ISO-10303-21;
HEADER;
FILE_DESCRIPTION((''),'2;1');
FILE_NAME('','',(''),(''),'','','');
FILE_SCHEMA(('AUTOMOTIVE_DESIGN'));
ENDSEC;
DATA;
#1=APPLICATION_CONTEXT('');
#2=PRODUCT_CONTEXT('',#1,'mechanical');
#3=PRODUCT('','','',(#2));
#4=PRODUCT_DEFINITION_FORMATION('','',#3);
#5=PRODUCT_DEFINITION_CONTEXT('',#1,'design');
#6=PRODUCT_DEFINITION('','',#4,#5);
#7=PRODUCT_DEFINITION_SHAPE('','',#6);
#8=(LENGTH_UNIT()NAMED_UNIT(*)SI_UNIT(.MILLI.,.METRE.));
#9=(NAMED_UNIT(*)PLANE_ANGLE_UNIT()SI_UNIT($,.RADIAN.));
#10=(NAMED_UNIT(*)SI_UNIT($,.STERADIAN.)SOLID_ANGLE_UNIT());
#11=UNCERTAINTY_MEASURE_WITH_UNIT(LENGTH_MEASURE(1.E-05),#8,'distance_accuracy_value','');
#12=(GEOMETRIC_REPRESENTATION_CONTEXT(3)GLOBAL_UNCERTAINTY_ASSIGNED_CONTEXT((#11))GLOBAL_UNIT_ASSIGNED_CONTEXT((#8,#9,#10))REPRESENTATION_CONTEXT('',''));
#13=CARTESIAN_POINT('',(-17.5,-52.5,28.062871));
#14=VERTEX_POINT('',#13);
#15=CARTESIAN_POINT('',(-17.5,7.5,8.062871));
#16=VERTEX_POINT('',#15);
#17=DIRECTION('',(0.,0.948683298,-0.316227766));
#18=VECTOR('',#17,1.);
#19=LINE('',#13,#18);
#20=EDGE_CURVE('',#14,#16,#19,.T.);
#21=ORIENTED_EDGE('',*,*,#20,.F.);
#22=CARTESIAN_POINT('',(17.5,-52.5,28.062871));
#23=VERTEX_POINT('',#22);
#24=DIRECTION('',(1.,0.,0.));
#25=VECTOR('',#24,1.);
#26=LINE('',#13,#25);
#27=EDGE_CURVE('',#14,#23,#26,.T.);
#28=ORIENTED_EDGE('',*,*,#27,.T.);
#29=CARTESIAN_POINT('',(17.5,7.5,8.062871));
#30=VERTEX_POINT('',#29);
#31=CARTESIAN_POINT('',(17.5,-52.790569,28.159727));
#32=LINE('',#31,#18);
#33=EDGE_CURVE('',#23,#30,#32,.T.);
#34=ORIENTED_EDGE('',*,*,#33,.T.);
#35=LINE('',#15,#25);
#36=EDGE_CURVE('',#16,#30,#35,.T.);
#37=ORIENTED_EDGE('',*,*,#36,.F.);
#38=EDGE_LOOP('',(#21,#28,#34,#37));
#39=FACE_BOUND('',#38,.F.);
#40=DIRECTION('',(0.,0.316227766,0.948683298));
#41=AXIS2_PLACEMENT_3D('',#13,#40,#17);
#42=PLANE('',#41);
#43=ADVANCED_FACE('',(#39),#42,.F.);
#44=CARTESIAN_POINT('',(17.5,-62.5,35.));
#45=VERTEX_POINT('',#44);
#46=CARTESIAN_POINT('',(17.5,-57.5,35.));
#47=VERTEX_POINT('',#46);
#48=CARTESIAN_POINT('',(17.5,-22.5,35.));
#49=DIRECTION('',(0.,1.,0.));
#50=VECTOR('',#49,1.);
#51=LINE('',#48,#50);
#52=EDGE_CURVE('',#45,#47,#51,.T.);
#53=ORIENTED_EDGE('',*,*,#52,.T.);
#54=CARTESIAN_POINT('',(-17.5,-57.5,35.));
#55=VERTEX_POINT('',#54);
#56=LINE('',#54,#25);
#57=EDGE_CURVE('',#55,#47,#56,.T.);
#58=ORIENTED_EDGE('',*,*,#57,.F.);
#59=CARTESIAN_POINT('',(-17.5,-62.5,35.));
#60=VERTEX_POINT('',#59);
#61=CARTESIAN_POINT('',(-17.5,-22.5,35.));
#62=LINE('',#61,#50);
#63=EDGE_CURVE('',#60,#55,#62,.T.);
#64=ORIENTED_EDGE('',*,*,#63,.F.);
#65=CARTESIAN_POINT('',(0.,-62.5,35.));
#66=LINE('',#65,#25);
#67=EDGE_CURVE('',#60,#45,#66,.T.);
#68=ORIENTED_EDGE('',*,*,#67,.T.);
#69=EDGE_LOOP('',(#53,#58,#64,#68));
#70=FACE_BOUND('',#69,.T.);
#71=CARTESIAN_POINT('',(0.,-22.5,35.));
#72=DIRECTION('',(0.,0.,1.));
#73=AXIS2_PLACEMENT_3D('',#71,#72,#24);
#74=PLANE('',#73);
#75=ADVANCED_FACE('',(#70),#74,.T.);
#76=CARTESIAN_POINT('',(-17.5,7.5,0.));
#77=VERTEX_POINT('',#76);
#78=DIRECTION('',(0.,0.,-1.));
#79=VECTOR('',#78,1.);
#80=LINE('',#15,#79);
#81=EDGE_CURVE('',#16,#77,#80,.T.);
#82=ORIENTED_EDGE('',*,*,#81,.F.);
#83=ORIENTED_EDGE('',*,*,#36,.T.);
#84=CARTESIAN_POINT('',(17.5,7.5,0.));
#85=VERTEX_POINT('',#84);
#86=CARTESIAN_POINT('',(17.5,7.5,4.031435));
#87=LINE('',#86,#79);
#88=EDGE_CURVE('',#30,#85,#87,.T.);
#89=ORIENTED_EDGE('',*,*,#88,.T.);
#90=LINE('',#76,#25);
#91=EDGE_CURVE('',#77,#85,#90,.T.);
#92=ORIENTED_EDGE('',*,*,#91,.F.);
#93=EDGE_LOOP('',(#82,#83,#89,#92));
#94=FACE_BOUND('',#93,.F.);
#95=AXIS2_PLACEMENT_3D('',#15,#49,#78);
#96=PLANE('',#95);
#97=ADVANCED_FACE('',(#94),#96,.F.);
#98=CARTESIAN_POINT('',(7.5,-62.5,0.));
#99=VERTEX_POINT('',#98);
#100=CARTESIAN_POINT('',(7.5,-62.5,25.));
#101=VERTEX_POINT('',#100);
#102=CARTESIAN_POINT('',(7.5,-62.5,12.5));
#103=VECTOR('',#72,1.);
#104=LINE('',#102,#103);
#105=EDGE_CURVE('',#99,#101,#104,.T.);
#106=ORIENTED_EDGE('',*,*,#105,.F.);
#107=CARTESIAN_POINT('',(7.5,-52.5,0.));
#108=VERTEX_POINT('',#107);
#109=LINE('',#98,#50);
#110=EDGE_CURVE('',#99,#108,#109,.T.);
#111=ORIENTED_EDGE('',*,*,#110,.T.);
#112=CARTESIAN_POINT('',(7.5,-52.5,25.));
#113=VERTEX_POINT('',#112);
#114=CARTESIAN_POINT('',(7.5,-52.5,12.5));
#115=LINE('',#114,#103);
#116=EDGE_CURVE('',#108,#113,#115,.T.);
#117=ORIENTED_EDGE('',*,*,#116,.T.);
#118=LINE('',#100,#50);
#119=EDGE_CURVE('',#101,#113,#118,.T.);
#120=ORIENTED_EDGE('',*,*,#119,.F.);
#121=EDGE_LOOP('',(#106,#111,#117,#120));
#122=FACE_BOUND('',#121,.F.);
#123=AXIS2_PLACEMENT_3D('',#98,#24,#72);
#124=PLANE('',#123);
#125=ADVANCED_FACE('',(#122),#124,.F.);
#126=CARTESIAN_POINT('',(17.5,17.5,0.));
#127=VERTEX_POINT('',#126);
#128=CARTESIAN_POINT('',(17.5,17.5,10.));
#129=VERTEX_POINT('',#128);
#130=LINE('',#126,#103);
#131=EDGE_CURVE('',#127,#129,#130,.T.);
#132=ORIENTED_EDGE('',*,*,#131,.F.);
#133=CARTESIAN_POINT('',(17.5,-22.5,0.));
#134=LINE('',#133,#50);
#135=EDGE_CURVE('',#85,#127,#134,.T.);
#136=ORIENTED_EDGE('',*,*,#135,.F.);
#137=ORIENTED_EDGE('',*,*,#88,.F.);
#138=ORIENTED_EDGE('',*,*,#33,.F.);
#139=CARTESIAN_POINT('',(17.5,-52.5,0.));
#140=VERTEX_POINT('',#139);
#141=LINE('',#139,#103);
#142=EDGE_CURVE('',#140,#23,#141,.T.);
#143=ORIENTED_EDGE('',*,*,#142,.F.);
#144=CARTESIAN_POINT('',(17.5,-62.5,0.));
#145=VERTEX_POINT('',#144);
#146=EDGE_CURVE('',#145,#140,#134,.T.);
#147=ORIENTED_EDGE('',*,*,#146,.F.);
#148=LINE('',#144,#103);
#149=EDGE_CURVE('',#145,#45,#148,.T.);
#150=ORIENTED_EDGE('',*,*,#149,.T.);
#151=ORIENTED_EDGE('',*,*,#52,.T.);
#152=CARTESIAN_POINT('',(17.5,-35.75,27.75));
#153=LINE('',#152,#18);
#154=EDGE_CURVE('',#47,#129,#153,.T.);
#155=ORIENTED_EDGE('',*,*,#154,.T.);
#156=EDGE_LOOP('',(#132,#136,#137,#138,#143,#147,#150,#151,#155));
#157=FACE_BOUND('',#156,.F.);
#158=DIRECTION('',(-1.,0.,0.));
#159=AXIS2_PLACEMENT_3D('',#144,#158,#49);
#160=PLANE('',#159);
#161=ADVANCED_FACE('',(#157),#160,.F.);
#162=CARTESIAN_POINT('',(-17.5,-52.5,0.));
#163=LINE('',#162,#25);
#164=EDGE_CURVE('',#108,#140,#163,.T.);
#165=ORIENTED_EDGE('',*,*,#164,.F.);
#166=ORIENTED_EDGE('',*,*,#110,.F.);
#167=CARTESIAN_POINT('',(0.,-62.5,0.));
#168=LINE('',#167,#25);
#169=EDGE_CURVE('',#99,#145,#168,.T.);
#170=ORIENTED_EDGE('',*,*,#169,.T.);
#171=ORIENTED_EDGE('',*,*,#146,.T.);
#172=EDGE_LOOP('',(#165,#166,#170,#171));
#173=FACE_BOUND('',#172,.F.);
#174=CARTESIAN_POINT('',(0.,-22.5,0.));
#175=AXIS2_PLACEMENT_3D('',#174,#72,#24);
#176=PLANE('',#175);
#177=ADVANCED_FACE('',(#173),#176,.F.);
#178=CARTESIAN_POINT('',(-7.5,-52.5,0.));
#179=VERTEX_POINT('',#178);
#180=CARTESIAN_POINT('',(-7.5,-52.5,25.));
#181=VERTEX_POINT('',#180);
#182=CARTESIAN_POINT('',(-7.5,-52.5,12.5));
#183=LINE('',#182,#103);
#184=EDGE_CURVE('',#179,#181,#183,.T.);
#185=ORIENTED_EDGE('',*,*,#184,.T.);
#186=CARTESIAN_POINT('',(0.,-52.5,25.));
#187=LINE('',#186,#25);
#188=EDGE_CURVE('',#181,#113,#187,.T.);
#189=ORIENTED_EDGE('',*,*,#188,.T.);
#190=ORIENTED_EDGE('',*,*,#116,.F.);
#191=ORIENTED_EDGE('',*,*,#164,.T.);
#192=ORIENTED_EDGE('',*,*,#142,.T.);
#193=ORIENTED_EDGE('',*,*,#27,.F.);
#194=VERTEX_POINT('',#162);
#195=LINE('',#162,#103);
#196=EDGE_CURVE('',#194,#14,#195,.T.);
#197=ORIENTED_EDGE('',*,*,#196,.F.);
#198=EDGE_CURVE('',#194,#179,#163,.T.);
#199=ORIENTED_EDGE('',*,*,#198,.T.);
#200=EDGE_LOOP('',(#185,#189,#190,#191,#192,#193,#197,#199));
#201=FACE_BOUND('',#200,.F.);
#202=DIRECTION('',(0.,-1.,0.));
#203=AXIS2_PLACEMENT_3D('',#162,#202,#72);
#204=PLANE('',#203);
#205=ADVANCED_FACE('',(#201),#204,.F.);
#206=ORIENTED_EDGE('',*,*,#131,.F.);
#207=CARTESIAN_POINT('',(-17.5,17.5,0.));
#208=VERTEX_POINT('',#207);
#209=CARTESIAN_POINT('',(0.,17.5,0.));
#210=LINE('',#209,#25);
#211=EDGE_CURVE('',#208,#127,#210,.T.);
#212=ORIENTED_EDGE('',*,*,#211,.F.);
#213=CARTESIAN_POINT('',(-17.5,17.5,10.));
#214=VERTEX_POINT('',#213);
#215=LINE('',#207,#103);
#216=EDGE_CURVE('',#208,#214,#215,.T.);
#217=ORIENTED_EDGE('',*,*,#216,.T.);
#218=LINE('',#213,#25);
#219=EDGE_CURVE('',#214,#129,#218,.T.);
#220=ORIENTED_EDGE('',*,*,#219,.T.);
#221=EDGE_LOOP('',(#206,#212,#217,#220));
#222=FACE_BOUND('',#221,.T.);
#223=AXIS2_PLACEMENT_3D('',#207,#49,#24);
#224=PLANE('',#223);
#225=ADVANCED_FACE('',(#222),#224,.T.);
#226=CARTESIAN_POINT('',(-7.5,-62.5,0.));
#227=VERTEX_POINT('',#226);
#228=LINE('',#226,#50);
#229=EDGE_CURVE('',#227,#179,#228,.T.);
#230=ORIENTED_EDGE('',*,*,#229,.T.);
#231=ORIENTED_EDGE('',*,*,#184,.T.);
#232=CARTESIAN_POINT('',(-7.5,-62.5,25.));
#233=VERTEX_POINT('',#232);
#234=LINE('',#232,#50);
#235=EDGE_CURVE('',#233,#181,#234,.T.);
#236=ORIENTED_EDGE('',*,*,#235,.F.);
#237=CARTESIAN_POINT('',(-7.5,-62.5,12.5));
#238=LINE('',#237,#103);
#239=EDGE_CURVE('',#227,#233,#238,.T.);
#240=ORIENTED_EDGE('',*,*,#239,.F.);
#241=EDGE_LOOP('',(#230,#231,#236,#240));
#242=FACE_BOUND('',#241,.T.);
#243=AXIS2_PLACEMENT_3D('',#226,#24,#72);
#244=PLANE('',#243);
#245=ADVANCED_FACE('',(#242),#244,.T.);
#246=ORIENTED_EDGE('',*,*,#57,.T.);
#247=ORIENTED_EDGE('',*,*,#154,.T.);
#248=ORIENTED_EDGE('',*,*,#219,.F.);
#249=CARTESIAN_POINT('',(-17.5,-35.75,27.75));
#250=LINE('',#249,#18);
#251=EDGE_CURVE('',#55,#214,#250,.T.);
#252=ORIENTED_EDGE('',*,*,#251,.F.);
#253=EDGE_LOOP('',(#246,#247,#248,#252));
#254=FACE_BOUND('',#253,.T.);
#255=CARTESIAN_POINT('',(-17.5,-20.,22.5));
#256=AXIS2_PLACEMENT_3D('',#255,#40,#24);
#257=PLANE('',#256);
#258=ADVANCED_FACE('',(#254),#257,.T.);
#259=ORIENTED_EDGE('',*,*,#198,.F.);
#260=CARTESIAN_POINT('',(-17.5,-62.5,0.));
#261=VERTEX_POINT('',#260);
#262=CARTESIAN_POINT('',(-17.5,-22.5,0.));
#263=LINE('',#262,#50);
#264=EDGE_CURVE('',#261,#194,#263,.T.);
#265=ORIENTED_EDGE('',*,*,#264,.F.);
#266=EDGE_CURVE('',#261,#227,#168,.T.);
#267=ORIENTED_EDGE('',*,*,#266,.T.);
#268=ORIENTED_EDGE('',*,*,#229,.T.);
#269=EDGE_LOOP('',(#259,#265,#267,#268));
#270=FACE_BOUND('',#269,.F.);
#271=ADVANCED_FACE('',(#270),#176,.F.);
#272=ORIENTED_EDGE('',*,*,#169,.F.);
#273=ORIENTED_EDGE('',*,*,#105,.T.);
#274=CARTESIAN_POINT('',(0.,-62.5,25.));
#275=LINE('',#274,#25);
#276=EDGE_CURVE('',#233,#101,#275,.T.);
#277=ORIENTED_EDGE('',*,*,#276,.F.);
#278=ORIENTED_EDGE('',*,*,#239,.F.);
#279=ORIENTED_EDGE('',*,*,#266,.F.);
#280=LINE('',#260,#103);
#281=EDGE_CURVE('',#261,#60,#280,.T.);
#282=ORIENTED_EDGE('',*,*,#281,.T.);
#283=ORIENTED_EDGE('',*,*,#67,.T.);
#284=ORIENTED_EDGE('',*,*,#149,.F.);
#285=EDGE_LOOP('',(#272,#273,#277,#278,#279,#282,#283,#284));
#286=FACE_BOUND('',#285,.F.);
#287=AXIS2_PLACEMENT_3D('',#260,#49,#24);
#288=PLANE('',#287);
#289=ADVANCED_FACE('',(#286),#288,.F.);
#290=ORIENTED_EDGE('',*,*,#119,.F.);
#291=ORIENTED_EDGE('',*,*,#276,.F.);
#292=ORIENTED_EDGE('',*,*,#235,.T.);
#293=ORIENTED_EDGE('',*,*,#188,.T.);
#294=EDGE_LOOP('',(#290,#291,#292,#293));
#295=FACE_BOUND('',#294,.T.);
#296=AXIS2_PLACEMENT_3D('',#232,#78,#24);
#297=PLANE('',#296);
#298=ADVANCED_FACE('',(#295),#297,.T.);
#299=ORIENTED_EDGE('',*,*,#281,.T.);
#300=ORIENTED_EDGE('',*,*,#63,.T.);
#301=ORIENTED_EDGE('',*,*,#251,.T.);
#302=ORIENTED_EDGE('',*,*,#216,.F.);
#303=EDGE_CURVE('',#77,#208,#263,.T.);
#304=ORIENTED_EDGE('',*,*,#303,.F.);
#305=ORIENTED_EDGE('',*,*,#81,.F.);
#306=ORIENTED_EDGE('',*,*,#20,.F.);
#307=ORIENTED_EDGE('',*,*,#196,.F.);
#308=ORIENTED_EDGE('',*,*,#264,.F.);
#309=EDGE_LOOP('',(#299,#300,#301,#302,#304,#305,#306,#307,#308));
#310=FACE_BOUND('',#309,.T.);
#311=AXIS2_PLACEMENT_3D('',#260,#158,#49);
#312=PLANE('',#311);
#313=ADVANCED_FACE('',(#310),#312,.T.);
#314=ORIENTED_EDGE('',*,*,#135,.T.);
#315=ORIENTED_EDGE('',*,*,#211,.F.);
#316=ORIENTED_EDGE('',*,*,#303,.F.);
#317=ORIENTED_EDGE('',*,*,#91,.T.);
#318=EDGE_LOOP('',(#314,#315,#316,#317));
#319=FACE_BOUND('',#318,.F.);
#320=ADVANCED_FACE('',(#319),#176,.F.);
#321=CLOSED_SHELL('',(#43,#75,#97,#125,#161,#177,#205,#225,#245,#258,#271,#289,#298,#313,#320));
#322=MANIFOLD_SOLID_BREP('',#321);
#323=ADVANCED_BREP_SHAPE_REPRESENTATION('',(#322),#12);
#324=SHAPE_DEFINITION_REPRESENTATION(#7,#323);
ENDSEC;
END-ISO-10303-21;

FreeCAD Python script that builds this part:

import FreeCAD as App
import Part
import Sketcher


def edges_at(feature, points):
    """Names of the edges that pass closest to the given points."""
    edges = feature.Shape.Edges
    near = lambda p: min(range(len(edges)), key=lambda i: edges[i].distToShape(Part.Vertex(*p))[0])
    return sorted({f"Edge{near(p) + 1}" for p in points})

doc = App.newDocument("Part")
params = doc.addObject("Spreadsheet::Sheet", "Params")
for row, (alias, value) in enumerate([
    ("sketch1_width", "35 mm"),
    ("sketch1_height", "80 mm"),
    ("pad1_length", "35 mm"),
    ("chamfer_size", "75 mm"),
    ("chamfer_size2", "25 mm"),
    ("sketch2_width", "60 mm"),
    ("sketch3_width", "15 mm"),
    ("sketch3_height", "25 mm"),
    ("pocket2_length", "10 mm"),
], start=1):
    params.set(f"A{row}", alias)
    params.set(f"B{row}", "=" + value)
    params.setAlias(f"B{row}", alias)

body = doc.addObject("PartDesign::Body", "Body")

sketch1 = body.newObject("Sketcher::SketchObject", "Sketch")
sketch1.AttachmentSupport = (doc.getObject("XY_Plane"), [""])
sketch1.MapMode = "FlatFace"
sketch1.addGeometry(Part.LineSegment(App.Vector(-18, 18, 0), App.Vector(-18, -62, 0)), False)
sketch1.addGeometry(Part.LineSegment(App.Vector(-18, -62, 0), App.Vector(18, -62, 0)), False)
sketch1.addGeometry(Part.LineSegment(App.Vector(18, -62, 0), App.Vector(18, 18, 0)), False)
sketch1.addGeometry(Part.LineSegment(App.Vector(18, 18, 0), App.Vector(-18, 18, 0)), False)
sketch1.addConstraint(Sketcher.Constraint("Coincident", 0, 2, 1, 1))
sketch1.addConstraint(Sketcher.Constraint("Coincident", 1, 2, 2, 1))
sketch1.addConstraint(Sketcher.Constraint("Coincident", 2, 2, 3, 1))
sketch1.addConstraint(Sketcher.Constraint("Coincident", 3, 2, 0, 1))
sketch1.addConstraint(Sketcher.Constraint("Vertical", 0))
sketch1.addConstraint(Sketcher.Constraint("Horizontal", 1))
sketch1.addConstraint(Sketcher.Constraint("Vertical", 2))
sketch1.addConstraint(Sketcher.Constraint("Horizontal", 3))
sketch1.addConstraint(Sketcher.Constraint("DistanceX", 1, 1, 1, 2, 35.0))
sketch1.addConstraint(Sketcher.Constraint("DistanceY", 0, 2, 0, 1, 80.0))
sketch1.addConstraint(Sketcher.Constraint("DistanceX", 0, 2, -1, 1, 17.5))
sketch1.addConstraint(Sketcher.Constraint("DistanceY", 0, 2, -1, 1, 62.5))
sketch1.setExpression("Constraints[8]", "Params.sketch1_width")
sketch1.setExpression("Constraints[9]", "Params.sketch1_height")
pad1 = body.newObject("PartDesign::Pad", "Pad")
pad1.Profile = sketch1
pad1.setExpression("Length", "Params.pad1_length")
doc.recompute()

chamfer = body.newObject("PartDesign::Chamfer", "Chamfer")
chamfer.Base = (pad1, edges_at(pad1, [(0, 17.5, 35)]))
chamfer.ChamferType = "Two distances"
chamfer.setExpression("Size", "Params.chamfer_size")
chamfer.setExpression("Size2", "Params.chamfer_size2")
chamfer.FlipDirection = True

sketch2 = body.newObject("Sketcher::SketchObject", "Sketch001")
sketch2.AttachmentSupport = (doc.getObject("YZ_Plane"), [""])
sketch2.MapMode = "FlatFace"
sketch2.AttachmentOffset = App.Placement(App.Vector(0, 0, -17.5), App.Rotation())
sketch2.addGeometry(Part.LineSegment(App.Vector(8, 8, 0), App.Vector(8, 0, 0)), False)
sketch2.addGeometry(Part.LineSegment(App.Vector(8, 0, 0), App.Vector(-52, 0, 0)), False)
sketch2.addGeometry(Part.LineSegment(App.Vector(-52, 0, 0), App.Vector(-52, 28, 0)), False)
sketch2.addGeometry(Part.LineSegment(App.Vector(-52, 28, 0), App.Vector(8, 8, 0)), False)
sketch2.addConstraint(Sketcher.Constraint("Coincident", 0, 2, 1, 1))
sketch2.addConstraint(Sketcher.Constraint("Coincident", 1, 2, 2, 1))
sketch2.addConstraint(Sketcher.Constraint("Coincident", 2, 2, 3, 1))
sketch2.addConstraint(Sketcher.Constraint("Coincident", 3, 2, 0, 1))
sketch2.addConstraint(Sketcher.Constraint("Vertical", 0))
sketch2.addConstraint(Sketcher.Constraint("Horizontal", 1))
sketch2.addConstraint(Sketcher.Constraint("Vertical", 2))
sketch2.addConstraint(Sketcher.Constraint("PointOnObject", 0, 2, -1))
sketch2.addConstraint(Sketcher.Constraint("DistanceX", 1, 2, 1, 1, 60.0))
sketch2.addConstraint(Sketcher.Constraint("DistanceY", 3, 2, 2, 2, 20.0))
sketch2.addConstraint(Sketcher.Constraint("DistanceX", -1, 1, 0, 2, 7.5))
sketch2.addConstraint(Sketcher.Constraint("DistanceY", 0, 2, 0, 1, 8.062871))
sketch2.setExpression("Constraints[8]", "Params.sketch2_width")
pocket1 = body.newObject("PartDesign::Pocket", "Pocket")
pocket1.Profile = sketch2
pocket1.Type = "ThroughAll"
pocket1.Reversed = True

sketch3 = body.newObject("Sketcher::SketchObject", "Sketch002")
sketch3.AttachmentSupport = (doc.getObject("XZ_Plane"), [""])
sketch3.MapMode = "FlatFace"
sketch3.AttachmentOffset = App.Placement(App.Vector(0, 0, 62.5), App.Rotation())
sketch3.addGeometry(Part.LineSegment(App.Vector(-8, 25, 0), App.Vector(-8, 0, 0)), False)
sketch3.addGeometry(Part.LineSegment(App.Vector(-8, 0, 0), App.Vector(8, 0, 0)), False)
sketch3.addGeometry(Part.LineSegment(App.Vector(8, 0, 0), App.Vector(8, 25, 0)), False)
sketch3.addGeometry(Part.LineSegment(App.Vector(8, 25, 0), App.Vector(-8, 25, 0)), False)
sketch3.addConstraint(Sketcher.Constraint("Coincident", 0, 2, 1, 1))
sketch3.addConstraint(Sketcher.Constraint("Coincident", 1, 2, 2, 1))
sketch3.addConstraint(Sketcher.Constraint("Coincident", 2, 2, 3, 1))
sketch3.addConstraint(Sketcher.Constraint("Coincident", 3, 2, 0, 1))
sketch3.addConstraint(Sketcher.Constraint("Vertical", 0))
sketch3.addConstraint(Sketcher.Constraint("Horizontal", 1))
sketch3.addConstraint(Sketcher.Constraint("Vertical", 2))
sketch3.addConstraint(Sketcher.Constraint("Horizontal", 3))
sketch3.addConstraint(Sketcher.Constraint("Symmetric", 0, 2, 1, 2, -1, 1))
sketch3.addConstraint(Sketcher.Constraint("DistanceX", 1, 1, 1, 2, 15.0))
sketch3.addConstraint(Sketcher.Constraint("DistanceY", 0, 2, 0, 1, 25.0))
sketch3.setExpression("Constraints[9]", "Params.sketch3_width")
sketch3.setExpression("Constraints[10]", "Params.sketch3_height")
pocket2 = body.newObject("PartDesign::Pocket", "Pocket001")
pocket2.Profile = sketch3
pocket2.setExpression("Length", "Params.pocket2_length")

doc.recompute()
